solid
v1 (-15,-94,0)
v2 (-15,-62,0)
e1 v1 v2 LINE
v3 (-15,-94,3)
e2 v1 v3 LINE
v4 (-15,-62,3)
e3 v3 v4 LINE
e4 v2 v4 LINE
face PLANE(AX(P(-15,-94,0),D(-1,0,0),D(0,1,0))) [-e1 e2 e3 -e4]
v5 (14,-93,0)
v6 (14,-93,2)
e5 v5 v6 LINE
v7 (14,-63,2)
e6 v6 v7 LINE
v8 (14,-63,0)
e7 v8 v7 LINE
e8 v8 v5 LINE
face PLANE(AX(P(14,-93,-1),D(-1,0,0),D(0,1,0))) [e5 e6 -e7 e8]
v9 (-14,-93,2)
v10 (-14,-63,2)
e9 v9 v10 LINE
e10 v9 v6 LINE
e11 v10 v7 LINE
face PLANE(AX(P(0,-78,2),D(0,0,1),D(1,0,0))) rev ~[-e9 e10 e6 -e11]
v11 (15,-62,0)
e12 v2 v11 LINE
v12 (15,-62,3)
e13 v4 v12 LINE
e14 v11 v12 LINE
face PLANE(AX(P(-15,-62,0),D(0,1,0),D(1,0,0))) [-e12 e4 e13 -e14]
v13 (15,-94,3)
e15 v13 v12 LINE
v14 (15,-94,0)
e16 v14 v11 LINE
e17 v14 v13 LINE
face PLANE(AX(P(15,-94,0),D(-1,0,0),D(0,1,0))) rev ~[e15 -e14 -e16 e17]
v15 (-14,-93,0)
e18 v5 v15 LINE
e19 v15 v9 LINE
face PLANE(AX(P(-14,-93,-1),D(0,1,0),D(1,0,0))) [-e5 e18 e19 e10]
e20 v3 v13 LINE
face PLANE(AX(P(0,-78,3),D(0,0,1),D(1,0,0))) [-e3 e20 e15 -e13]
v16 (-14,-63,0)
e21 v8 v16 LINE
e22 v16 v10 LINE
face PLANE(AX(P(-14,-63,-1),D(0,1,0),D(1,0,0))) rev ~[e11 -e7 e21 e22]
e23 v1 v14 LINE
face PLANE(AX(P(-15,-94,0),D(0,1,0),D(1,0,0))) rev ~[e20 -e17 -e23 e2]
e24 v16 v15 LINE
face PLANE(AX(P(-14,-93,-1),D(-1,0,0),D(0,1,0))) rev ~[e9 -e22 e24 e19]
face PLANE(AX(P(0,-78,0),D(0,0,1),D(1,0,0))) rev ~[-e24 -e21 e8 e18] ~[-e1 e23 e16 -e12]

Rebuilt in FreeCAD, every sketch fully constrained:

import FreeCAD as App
import Part
import Sketcher
from FreeCAD import Vector
Q = App.Units.Quantity


def add_polygon(sketch, points):
    """Adds a closed chain of lines whose ends are joined by coincident constraints."""
    first, n = sketch.GeometryCount, len(points)
    for a, b in zip(points, points[1:] + points[:1]):
        sketch.addGeometry(Part.LineSegment(App.Vector(*a, 0), App.Vector(*b, 0)), False)
    for i in range(n):
        sketch.addConstraint(Sketcher.Constraint("Coincident", first + i, 2, first + (i + 1) % n, 1))

doc = App.newDocument("Part")
body = doc.addObject("PartDesign::Body", "Body")

# Sketch on XY plane
sketch1 = body.newObject("Sketcher::SketchObject", "Sketch")
sketch1.AttachmentSupport = (doc.getObject("XY_Plane"), [""])
sketch1.MapMode = "FlatFace"
sketch1.AttachmentOffset = App.Placement(Vector(0, 0, -1), App.Rotation())
add_polygon(sketch1, [(-14, -63), (-14, -93), (14, -93), (14, -63)])  # lines 0-3
sketch1.addConstraint([
    Sketcher.Constraint("Vertical", 0),
    Sketcher.Constraint("Horizontal", 1),
    Sketcher.Constraint("Vertical", 2),
    Sketcher.Constraint("Horizontal", 3),
    Sketcher.Constraint("DistanceX", 1, 1, 1, 2, Q("28 mm")),
    Sketcher.Constraint("DistanceY", 0, 2, 0, 1, Q("30 mm")),
    Sketcher.Constraint("DistanceX", 0, 2, -1, 1, Q("14 mm")),
    Sketcher.Constraint("DistanceY", 0, 2, -1, 1, Q("93 mm")),
])
pad1 = body.newObject("PartDesign::Pad", "Pad")
pad1.Profile = sketch1
pad1.Length = 3
body2 = doc.addObject("PartDesign::Body", "Body001")

# Sketch on XY plane
sketch2 = body2.newObject("Sketcher::SketchObject", "Sketch001")
sketch2.AttachmentSupport = (doc.getObject("XY_Plane001"), [""])
sketch2.MapMode = "FlatFace"
add_polygon(sketch2, [(-15, -62), (-15, -94), (15, -94), (15, -62)])  # lines 0-3
sketch2.addConstraint([
    Sketcher.Constraint("Vertical", 0),
    Sketcher.Constraint("Horizontal", 1),
    Sketcher.Constraint("Vertical", 2),
    Sketcher.Constraint("Horizontal", 3),
    Sketcher.Constraint("DistanceX", 1, 1, 1, 2, Q("30 mm")),
    Sketcher.Constraint("DistanceY", 0, 2, 0, 1, Q("32 mm")),
    Sketcher.Constraint("DistanceX", 0, 2, -1, 1, Q("15 mm")),
    Sketcher.Constraint("DistanceY", 0, 2, -1, 1, Q("94 mm")),
])
pad2 = body2.newObject("PartDesign::Pad", "Pad001")
pad2.Profile = sketch2
pad2.Length = 3
doc.recompute()

boolean = body2.newObject("PartDesign::Boolean", "Boolean")
boolean.Type = "Cut"
boolean.addObjects([body])

doc.recompute()
